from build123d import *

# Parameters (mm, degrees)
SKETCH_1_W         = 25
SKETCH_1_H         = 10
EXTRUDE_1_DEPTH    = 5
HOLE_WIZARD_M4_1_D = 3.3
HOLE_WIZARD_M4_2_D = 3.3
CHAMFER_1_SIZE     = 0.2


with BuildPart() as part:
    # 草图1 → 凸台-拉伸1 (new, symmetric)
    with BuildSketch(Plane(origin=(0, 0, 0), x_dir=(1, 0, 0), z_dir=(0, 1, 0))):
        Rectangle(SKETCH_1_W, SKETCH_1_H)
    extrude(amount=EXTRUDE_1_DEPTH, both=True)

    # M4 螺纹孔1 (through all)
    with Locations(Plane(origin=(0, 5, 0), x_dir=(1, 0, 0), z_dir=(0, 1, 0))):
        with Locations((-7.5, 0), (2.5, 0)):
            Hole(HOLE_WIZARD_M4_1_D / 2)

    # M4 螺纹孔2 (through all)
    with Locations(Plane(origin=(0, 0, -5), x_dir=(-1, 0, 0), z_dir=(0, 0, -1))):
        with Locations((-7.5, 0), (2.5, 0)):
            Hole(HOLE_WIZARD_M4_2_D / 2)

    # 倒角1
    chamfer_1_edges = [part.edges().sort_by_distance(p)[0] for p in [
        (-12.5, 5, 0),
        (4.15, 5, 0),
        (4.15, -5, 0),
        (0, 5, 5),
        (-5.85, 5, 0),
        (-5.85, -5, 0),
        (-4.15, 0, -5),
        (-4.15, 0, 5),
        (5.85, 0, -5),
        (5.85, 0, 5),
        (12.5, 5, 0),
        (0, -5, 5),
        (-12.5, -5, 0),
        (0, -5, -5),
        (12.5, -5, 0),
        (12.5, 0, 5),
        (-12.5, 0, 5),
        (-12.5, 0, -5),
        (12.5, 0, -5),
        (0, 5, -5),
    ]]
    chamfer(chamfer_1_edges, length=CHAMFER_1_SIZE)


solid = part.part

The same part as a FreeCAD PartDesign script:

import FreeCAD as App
import Part
import Sketcher

V = App.Vector
Q = App.Units.Quantity

doc = App.newDocument("Part")
body = doc.addObject("PartDesign::Body", "Body")

# Sketch on XZ plane
sketch1 = body.newObject("Sketcher::SketchObject", "Sketch")
sketch1.AttachmentSupport = (doc.getObject("XZ_Plane"), [""])
sketch1.MapMode = "FlatFace"
sketch1.addGeometry([
    Part.LineSegment(V(-12, -5, 0), V(-12, 5, 0)),
    Part.LineSegment(V(-12, 5, 0), V(12, 5, 0)),
    Part.LineSegment(V(12, 5, 0), V(12, -5, 0)),
    Part.LineSegment(V(12, -5, 0), V(-12, -5, 0)),
], False)
sketch1.addConstraint([
    Sketcher.Constraint("Coincident", 0, 2, 1, 1),
    Sketcher.Constraint("Coincident", 1, 2, 2, 1),
    Sketcher.Constraint("Coincident", 2, 2, 3, 1),
    Sketcher.Constraint("Coincident", 3, 2, 0, 1),
    Sketcher.Constraint("Vertical", 0),
    Sketcher.Constraint("Horizontal", 1),
    Sketcher.Constraint("Vertical", 2),
    Sketcher.Constraint("Horizontal", 3),
    Sketcher.Constraint("Symmetric", 0, 2, 2, 2, -1, 1),
    Sketcher.Constraint("DistanceX", 1, 1, 1, 2, Q("25 mm")),
    Sketcher.Constraint("DistanceY", 0, 1, 0, 2, Q("10 mm")),
])
pad1 = body.newObject("PartDesign::Pad", "Pad")
pad1.Profile = sketch1
pad1.Length = 10
pad1.Midplane = True

# Sketch on XZ plane
sketch2 = body.newObject("Sketcher::SketchObject", "Sketch001")
sketch2.AttachmentSupport = (doc.getObject("XZ_Plane"), [""])
sketch2.MapMode = "FlatFace"
sketch2.AttachmentOffset = App.Placement(V(0, 0, -5), App.Rotation())
sketch2.addGeometry([
    Part.Circle(V(-7.5, 0, 0), V(0, 0, 1), 1.6),
    Part.Circle(V(2.5, 0, 0), V(0, 0, 1), 1.6),
], False)
sketch2.addConstraint([
    Sketcher.Constraint("Equal", 0, 1),
    Sketcher.Constraint("PointOnObject", 0, 3, -1),
    Sketcher.Constraint("PointOnObject", 1, 3, -1),
    Sketcher.Constraint("Diameter", 0, Q("3.3 mm")),
    Sketcher.Constraint("DistanceX", 0, 3, 1, 3, Q("10 mm")),
    Sketcher.Constraint("DistanceX", 0, 3, -1, 1, Q("7.5 mm")),
])
doc.recompute()
hole = body.newObject("PartDesign::Hole", "Hole")
hole.Profile = sketch2
hole.ThreadType = "None"
hole.Diameter = 3.3
hole.DepthType = "ThroughAll"
hole.Reversed = True

# Sketch on XY plane
sketch3 = body.newObject("Sketcher::SketchObject", "Sketch002")
sketch3.AttachmentSupport = (doc.getObject("XY_Plane"), [""])
sketch3.MapMode = "FlatFace"
sketch3.AttachmentOffset = App.Placement(V(0, 0, -5), App.Rotation())
sketch3.addGeometry([
    Part.Circle(V(7.5, 0, 0), V(0, 0, 1), 1.6),
    Part.Circle(V(-2.5, 0, 0), V(0, 0, 1), 1.6),
], False)
sketch3.addConstraint([
    Sketcher.Constraint("Equal", 0, 1),
    Sketcher.Constraint("PointOnObject", 0, 3, -1),
    Sketcher.Constraint("PointOnObject", 1, 3, -1),
    Sketcher.Constraint("Diameter", 0, Q("3.3 mm")),
    Sketcher.Constraint("DistanceX", 1, 3, 0, 3, Q("10 mm")),
    Sketcher.Constraint("DistanceX", -1, 1, 0, 3, Q("7.5 mm")),
])
doc.recompute()
hole2 = body.newObject("PartDesign::Hole", "Hole001")
hole2.Profile = sketch3
hole2.ThreadType = "None"
hole2.Diameter = 3.3
hole2.DepthType = "ThroughAll"
hole2.Reversed = True
doc.recompute()

chamfer = body.newObject("PartDesign::Chamfer", "Chamfer")
chamfer.Base = (hole2, ["Edge1"])
chamfer.UseAllEdges = True
chamfer.Size = 0.2

doc.recompute()
